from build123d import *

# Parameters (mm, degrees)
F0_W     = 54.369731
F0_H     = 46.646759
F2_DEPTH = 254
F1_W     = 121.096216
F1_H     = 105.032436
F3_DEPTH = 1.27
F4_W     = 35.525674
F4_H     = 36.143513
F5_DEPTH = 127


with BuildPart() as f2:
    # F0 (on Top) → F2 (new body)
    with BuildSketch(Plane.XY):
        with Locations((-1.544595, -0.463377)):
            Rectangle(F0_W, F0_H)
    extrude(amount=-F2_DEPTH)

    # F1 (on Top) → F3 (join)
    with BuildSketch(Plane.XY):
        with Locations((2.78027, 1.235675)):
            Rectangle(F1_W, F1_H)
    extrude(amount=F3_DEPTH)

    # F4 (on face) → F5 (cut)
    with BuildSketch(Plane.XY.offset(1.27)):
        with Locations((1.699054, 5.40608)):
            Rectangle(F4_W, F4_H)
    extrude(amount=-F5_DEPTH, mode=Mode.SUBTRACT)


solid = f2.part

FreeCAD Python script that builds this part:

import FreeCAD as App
import Part
import Sketcher
from FreeCAD import Vector
Q = App.Units.Quantity


def add_polygon(sketch, points):
    """Adds a closed chain of lines whose ends are joined by coincident constraints."""
    first, n = sketch.GeometryCount, len(points)
    for a, b in zip(points, points[1:] + points[:1]):
        sketch.addGeometry(Part.LineSegment(App.Vector(*a, 0), App.Vector(*b, 0)), False)
    for i in range(n):
        sketch.addConstraint(Sketcher.Constraint("Coincident", first + i, 2, first + (i + 1) % n, 1))

doc = App.newDocument("Part")
body = doc.addObject("PartDesign::Body", "Body")

# Sketch on XY plane
sketch1 = body.newObject("Sketcher::SketchObject", "Sketch")
sketch1.AttachmentSupport = (doc.getObject("XY_Plane"), [""])
sketch1.MapMode = "FlatFace"
add_polygon(sketch1, [(-29, 23), (-29, -24), (26, -24), (26, 23)])  # lines 0-3
sketch1.addConstraint(Sketcher.Constraint("Vertical", 0))
sketch1.addConstraint(Sketcher.Constraint("Horizontal", 1))
sketch1.addConstraint(Sketcher.Constraint("Vertical", 2))
sketch1.addConstraint(Sketcher.Constraint("Horizontal", 3))
sketch1.addConstraint(Sketcher.Constraint("DistanceY", -1, 1, 2, 2, Q("0.9000001 in")))
sketch1.addConstraint(Sketcher.Constraint("DistanceX", 1, 1, 1, 2, Q("54.369731 mm")))
sketch1.addConstraint(Sketcher.Constraint("DistanceY", 0, 2, 0, 1, Q("46.646759 mm")))
sketch1.addConstraint(Sketcher.Constraint("DistanceX", 0, 2, -1, 1, Q("28.72946 mm")))
pad1 = body.newObject("PartDesign::Pad", "Pad")
pad1.Profile = sketch1
pad1.Length = Q("10 in")
pad1.Reversed = True

# Sketch on XY plane
sketch2 = body.newObject("Sketcher::SketchObject", "Sketch001")
sketch2.AttachmentSupport = (doc.getObject("XY_Plane"), [""])
sketch2.MapMode = "FlatFace"
add_polygon(sketch2, [(-58, 54), (-58, -51), (63, -51), (63, 54)])  # lines 0-3
sketch2.addConstraint(Sketcher.Constraint("Vertical", 0))
sketch2.addConstraint(Sketcher.Constraint("Horizontal", 1))
sketch2.addConstraint(Sketcher.Constraint("Vertical", 2))
sketch2.addConstraint(Sketcher.Constraint("Horizontal", 3))
sketch2.addConstraint(Sketcher.Constraint("DistanceX", 1, 1, 1, 2, Q("121.096216 mm")))
sketch2.addConstraint(Sketcher.Constraint("DistanceY", 0, 2, 0, 1, Q("105.032436 mm")))
sketch2.addConstraint(Sketcher.Constraint("DistanceX", 0, 2, -1, 1, Q("57.767838 mm")))
sketch2.addConstraint(Sketcher.Constraint("DistanceY", 0, 2, -1, 1, Q("51.280543 mm")))
pad2 = body.newObject("PartDesign::Pad", "Pad001")
pad2.Profile = sketch2
pad2.Length = Q("0.05 in")

# Sketch on XY plane
sketch3 = body.newObject("Sketcher::SketchObject", "Sketch002")
sketch3.AttachmentSupport = (doc.getObject("XY_Plane"), [""])
sketch3.MapMode = "FlatFace"
sketch3.AttachmentOffset = App.Placement(Vector(0, 0, 0.05 * 25.4), App.Rotation())
add_polygon(sketch3, [(-16, 23), (-16, -13), (19, -13), (19, 23)])  # lines 0-3
sketch3.addConstraint(Sketcher.Constraint("Vertical", 0))
sketch3.addConstraint(Sketcher.Constraint("Horizontal", 1))
sketch3.addConstraint(Sketcher.Constraint("Vertical", 2))
sketch3.addConstraint(Sketcher.Constraint("Horizontal", 3))
sketch3.addConstraint(Sketcher.Constraint("DistanceX", 1, 1, 1, 2, Q("35.525674 mm")))
sketch3.addConstraint(Sketcher.Constraint("DistanceY", 0, 2, 0, 1, Q("36.143513 mm")))
sketch3.addConstraint(Sketcher.Constraint("DistanceX", -1, 1, 1, 2, Q("19.461891 mm")))
sketch3.addConstraint(Sketcher.Constraint("DistanceY", 0, 2, -1, 1, Q("12.665677 mm")))
pocket1 = body.newObject("PartDesign::Pocket", "Pocket")
pocket1.Profile = sketch3
pocket1.Length = Q("5 in")

doc.recompute()
